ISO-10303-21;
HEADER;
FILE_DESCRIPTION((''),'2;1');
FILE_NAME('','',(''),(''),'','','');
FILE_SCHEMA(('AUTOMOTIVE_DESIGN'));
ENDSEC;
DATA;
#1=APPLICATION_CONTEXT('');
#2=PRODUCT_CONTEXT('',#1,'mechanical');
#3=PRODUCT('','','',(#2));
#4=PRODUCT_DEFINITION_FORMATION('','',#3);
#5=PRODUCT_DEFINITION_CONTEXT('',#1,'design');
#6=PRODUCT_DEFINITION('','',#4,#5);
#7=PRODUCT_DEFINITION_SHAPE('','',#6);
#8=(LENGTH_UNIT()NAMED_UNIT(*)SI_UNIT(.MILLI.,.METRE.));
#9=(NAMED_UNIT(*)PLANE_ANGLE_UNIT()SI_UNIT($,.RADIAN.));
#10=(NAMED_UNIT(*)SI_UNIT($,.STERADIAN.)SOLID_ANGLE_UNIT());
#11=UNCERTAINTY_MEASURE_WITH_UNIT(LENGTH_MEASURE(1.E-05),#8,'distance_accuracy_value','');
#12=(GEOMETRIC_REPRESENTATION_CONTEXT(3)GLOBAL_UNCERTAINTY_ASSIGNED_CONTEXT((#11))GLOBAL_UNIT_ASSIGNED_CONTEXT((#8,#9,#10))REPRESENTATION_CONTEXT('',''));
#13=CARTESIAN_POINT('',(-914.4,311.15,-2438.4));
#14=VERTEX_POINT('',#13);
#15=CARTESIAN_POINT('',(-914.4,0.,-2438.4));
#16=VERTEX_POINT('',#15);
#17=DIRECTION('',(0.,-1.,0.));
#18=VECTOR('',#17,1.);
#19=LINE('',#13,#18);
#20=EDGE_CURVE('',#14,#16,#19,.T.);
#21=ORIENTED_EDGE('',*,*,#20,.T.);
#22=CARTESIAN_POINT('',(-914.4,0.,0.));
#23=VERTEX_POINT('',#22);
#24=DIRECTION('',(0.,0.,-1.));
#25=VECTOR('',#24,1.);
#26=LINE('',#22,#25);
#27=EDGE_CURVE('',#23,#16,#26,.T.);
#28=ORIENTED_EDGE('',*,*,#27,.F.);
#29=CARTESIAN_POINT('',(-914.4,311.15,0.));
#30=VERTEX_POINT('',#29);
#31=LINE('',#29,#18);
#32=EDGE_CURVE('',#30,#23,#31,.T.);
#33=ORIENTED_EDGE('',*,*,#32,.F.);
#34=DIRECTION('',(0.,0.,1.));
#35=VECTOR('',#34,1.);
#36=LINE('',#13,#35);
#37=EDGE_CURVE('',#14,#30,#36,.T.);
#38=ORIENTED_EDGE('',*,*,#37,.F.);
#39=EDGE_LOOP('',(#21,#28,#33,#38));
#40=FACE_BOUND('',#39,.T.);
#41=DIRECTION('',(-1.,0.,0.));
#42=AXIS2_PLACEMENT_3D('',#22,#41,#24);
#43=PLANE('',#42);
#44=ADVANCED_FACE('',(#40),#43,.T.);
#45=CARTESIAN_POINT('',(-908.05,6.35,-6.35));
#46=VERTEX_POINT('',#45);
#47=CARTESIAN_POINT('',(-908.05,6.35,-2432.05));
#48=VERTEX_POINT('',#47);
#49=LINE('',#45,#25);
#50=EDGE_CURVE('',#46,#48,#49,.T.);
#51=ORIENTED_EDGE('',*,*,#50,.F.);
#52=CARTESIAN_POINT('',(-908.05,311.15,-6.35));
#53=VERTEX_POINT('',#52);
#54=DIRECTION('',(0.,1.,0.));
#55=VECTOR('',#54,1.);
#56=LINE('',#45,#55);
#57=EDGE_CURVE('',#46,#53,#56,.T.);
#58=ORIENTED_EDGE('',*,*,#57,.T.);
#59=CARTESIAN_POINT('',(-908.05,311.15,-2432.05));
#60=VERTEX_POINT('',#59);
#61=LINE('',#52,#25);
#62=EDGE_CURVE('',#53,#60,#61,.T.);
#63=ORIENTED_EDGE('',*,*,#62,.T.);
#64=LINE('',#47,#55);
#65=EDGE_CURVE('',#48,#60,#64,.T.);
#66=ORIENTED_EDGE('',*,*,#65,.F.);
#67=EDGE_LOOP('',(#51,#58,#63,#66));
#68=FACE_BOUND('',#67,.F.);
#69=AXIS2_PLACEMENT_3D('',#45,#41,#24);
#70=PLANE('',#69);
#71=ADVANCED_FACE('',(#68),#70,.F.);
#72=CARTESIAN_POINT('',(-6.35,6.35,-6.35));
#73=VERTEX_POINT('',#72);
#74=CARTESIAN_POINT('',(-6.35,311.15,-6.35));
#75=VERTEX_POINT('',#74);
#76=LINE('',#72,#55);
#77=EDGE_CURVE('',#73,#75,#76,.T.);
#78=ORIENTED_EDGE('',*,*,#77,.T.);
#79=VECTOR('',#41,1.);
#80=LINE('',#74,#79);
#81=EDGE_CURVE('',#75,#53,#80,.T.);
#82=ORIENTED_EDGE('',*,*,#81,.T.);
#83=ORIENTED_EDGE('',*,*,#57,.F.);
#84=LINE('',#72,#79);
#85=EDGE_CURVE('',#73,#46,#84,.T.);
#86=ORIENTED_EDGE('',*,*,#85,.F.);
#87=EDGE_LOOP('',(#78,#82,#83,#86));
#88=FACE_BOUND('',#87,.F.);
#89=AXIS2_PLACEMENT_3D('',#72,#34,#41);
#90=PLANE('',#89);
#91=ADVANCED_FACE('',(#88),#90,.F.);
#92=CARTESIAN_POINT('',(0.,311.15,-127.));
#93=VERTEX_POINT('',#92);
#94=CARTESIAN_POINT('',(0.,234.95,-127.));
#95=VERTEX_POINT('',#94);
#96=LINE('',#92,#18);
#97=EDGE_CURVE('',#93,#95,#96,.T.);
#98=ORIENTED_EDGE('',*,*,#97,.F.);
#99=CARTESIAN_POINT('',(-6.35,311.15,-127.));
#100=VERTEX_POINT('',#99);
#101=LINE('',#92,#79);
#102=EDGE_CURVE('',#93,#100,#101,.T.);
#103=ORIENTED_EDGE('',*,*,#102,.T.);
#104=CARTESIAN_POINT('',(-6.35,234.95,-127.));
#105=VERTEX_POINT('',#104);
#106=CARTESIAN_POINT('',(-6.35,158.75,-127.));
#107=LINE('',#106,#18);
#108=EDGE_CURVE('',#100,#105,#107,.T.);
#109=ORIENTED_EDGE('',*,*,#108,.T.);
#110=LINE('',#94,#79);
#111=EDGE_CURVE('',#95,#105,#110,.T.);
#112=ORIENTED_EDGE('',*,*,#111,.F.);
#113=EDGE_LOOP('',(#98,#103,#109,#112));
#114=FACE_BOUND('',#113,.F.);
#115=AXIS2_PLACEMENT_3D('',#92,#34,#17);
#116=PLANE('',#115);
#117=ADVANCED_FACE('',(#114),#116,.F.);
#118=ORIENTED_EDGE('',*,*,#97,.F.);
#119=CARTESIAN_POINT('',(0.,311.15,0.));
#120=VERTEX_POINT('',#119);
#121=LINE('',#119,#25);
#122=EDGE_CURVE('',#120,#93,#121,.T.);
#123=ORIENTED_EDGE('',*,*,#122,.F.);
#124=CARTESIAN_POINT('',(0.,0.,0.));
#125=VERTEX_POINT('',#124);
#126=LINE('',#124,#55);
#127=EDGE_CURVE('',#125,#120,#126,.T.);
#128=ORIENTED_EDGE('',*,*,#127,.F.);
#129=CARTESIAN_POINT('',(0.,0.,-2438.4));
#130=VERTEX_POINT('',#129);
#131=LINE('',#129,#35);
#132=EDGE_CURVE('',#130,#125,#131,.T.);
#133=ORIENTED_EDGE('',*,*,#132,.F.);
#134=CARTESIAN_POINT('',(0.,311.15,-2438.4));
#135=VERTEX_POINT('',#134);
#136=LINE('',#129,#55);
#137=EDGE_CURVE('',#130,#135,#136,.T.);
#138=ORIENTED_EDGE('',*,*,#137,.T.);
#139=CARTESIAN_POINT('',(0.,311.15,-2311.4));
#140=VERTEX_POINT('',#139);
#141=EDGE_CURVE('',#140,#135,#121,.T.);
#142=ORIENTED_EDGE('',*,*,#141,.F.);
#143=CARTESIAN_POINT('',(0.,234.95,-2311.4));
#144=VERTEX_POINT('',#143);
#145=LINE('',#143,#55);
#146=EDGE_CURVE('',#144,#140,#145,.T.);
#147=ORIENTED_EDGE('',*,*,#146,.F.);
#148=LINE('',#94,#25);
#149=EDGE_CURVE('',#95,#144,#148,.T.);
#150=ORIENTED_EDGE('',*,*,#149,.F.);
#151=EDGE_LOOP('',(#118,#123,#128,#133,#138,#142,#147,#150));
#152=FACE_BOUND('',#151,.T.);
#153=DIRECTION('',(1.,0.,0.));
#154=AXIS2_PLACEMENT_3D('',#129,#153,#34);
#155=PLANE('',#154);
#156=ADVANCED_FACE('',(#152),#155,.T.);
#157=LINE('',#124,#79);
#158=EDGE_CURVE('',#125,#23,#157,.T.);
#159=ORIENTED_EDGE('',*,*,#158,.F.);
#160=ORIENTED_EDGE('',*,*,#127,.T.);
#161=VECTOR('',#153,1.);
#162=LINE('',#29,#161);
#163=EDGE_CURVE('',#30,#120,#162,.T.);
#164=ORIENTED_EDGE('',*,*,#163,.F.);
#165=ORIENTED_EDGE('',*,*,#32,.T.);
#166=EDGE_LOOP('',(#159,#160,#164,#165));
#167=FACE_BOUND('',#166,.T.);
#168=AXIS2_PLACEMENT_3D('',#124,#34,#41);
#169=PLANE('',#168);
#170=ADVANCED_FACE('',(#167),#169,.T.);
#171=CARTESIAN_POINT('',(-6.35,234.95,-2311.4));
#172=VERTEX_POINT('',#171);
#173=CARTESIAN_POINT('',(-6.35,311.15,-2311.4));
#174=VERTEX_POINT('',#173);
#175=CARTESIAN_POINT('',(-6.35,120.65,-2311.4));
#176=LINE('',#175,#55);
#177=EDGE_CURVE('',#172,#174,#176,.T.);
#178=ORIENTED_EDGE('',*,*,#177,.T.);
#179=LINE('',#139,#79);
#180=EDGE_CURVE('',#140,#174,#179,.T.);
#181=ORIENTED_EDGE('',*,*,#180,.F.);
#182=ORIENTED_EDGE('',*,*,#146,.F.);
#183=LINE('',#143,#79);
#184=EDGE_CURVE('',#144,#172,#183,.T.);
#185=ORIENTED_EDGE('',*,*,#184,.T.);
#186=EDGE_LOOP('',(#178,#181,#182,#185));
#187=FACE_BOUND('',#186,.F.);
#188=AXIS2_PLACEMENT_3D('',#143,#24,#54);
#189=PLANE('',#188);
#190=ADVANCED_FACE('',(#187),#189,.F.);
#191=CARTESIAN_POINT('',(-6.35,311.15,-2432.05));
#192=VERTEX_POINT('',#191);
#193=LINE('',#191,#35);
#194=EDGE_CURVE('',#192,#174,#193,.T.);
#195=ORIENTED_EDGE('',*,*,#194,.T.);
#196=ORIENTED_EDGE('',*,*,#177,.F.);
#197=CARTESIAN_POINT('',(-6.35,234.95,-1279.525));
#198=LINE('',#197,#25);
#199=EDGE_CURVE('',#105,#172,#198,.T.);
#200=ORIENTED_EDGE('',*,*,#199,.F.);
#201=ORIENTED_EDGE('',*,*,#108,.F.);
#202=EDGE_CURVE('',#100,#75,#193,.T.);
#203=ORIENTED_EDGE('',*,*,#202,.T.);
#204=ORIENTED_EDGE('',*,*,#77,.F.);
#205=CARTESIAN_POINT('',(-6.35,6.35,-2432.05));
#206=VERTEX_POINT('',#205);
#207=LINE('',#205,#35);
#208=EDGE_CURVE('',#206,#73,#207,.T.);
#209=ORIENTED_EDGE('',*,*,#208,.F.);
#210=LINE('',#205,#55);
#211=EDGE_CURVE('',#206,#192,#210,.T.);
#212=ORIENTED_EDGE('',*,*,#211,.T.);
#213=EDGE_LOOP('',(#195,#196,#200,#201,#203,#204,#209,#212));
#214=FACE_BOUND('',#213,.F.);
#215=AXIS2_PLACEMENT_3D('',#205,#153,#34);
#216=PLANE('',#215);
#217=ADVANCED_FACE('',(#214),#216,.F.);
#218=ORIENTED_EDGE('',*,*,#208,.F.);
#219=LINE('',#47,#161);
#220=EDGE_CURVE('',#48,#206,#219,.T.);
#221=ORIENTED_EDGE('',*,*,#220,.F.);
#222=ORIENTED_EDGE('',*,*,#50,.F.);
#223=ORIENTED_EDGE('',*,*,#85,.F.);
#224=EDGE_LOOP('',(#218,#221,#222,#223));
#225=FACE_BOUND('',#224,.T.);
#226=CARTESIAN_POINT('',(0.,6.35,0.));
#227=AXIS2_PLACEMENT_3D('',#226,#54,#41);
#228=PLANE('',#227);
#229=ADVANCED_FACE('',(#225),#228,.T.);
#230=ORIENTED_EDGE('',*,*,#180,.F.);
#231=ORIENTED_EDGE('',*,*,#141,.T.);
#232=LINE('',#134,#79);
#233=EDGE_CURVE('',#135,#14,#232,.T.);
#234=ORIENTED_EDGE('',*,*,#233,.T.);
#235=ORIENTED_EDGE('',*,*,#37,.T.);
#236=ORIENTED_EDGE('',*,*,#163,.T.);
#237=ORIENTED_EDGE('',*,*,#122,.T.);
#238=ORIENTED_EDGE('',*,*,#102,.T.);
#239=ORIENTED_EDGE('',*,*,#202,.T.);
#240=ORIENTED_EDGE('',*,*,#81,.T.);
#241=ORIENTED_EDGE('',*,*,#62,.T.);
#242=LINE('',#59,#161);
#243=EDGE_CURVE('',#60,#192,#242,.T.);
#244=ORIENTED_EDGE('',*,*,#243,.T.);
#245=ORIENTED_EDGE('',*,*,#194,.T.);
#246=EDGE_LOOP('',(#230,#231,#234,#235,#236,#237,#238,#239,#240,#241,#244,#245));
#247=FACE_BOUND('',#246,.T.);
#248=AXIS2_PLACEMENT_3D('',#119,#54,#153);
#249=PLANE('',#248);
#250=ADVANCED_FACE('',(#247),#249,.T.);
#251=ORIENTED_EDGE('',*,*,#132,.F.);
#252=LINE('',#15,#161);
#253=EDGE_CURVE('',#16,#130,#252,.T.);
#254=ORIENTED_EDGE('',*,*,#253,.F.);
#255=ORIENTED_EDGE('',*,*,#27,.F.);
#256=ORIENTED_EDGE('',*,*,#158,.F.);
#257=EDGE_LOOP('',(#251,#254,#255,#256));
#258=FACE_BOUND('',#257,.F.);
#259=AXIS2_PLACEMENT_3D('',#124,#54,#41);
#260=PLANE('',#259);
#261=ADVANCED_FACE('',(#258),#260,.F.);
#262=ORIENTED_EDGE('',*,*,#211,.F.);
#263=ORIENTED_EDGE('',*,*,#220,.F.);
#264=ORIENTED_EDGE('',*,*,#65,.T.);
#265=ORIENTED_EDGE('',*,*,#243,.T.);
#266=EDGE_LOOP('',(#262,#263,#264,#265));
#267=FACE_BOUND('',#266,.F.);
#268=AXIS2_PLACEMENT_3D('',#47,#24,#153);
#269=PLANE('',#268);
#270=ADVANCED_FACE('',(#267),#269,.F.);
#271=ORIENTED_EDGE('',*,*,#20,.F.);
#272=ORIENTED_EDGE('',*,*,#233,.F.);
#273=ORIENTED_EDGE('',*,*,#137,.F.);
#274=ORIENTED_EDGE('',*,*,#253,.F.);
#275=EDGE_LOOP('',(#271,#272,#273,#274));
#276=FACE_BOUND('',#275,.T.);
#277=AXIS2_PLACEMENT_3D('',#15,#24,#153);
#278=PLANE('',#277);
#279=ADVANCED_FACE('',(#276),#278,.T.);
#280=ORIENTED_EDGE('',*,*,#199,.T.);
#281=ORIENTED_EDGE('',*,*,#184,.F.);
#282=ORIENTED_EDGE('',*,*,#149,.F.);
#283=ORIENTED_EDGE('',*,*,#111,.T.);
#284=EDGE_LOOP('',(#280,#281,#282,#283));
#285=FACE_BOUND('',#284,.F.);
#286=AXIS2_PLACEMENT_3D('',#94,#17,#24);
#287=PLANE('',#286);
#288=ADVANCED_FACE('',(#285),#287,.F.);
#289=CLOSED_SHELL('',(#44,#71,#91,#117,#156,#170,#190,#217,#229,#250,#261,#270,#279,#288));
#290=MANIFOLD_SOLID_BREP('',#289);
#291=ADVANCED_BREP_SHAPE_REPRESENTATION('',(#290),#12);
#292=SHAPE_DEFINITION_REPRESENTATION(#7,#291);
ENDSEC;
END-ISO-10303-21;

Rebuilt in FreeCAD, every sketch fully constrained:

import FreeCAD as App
import Part
import Sketcher

V = App.Vector
Q = App.Units.Quantity

doc = App.newDocument("Part")
body = doc.addObject("PartDesign::Body", "Body")

# Sketch on XZ plane
sketch1 = doc.addObject("Sketcher::SketchObject", "Sketch")
body.addObject(sketch1)
sketch1.AttachmentSupport = (doc.XZ_Plane, [""])
sketch1.MapMode = "FlatFace"
sketch1.addGeometry(Part.LineSegment(V(-914, 0, 0), V(0, 0, 0)), False)
sketch1.addGeometry(Part.LineSegment(V(0, 0, 0), V(0, -2438, 0)), False)
sketch1.addGeometry(Part.LineSegment(V(0, -2438, 0), V(-914, -2438, 0)), False)
sketch1.addGeometry(Part.LineSegment(V(-914, -2438, 0), V(-914, 0, 0)), False)
sketch1.addConstraint(Sketcher.Constraint("Coincident", 0, 2, 1, 1))
sketch1.addConstraint(Sketcher.Constraint("Coincident", 1, 2, 2, 1))
sketch1.addConstraint(Sketcher.Constraint("Coincident", 2, 2, 3, 1))
sketch1.addConstraint(Sketcher.Constraint("Coincident", 3, 2, 0, 1))
sketch1.addConstraint(Sketcher.Constraint("Horizontal", 0))
sketch1.addConstraint(Sketcher.Constraint("Vertical", 1))
sketch1.addConstraint(Sketcher.Constraint("Horizontal", 2))
sketch1.addConstraint(Sketcher.Constraint("Vertical", 3))
sketch1.addConstraint(Sketcher.Constraint("Coincident", 0, 2, -1, 1))
sketch1.addConstraint(Sketcher.Constraint("DistanceX", 0, 1, 0, 2, Q("36 in")))
sketch1.addConstraint(Sketcher.Constraint("DistanceY", 1, 2, 1, 1, Q("96 in")))
pad1 = doc.addObject("PartDesign::Pad", "Pad")
body.addObject(pad1)
pad1.Profile = sketch1
pad1.Length = Q("0.25 in")
pad1.Reversed = True

# Sketch on XZ plane
sketch2 = doc.addObject("Sketcher::SketchObject", "Sketch001")
body.addObject(sketch2)
sketch2.AttachmentSupport = (doc.XZ_Plane, [""])
sketch2.MapMode = "FlatFace"
sketch2.AttachmentOffset = App.Placement(V(0, 0, -0.25 * 25.4), App.Rotation())
sketch2.addGeometry(Part.LineSegment(V(0, -2438, 0), V(-914, -2438, 0)), False)
sketch2.addGeometry(Part.LineSegment(V(-914, -2438, 0), V(-914, 0, 0)), False)
sketch2.addGeometry(Part.LineSegment(V(-914, 0, 0), V(0, 0, 0)), False)
sketch2.addGeometry(Part.LineSegment(V(0, 0, 0), V(0, -2438, 0)), False)
sketch2.addGeometry(Part.LineSegment(V(-6, -2432, 0), V(-6, -6, 0)), False)
sketch2.addGeometry(Part.LineSegment(V(-6, -6, 0), V(-908, -6, 0)), False)
sketch2.addGeometry(Part.LineSegment(V(-908, -6, 0), V(-908, -2432, 0)), False)
sketch2.addGeometry(Part.LineSegment(V(-908, -2432, 0), V(-6, -2432, 0)), False)
sketch2.addConstraint(Sketcher.Constraint("Coincident", 0, 2, 1, 1))
sketch2.addConstraint(Sketcher.Constraint("Coincident", 1, 2, 2, 1))
sketch2.addConstraint(Sketcher.Constraint("Coincident", 2, 2, 3, 1))
sketch2.addConstraint(Sketcher.Constraint("Coincident", 3, 2, 0, 1))
sketch2.addConstraint(Sketcher.Constraint("Coincident", 4, 2, 5, 1))
sketch2.addConstraint(Sketcher.Constraint("Coincident", 5, 2, 6, 1))
sketch2.addConstraint(Sketcher.Constraint("Coincident", 6, 2, 7, 1))
sketch2.addConstraint(Sketcher.Constraint("Coincident", 7, 2, 4, 1))
sketch2.addConstraint(Sketcher.Constraint("Horizontal", 0))
sketch2.addConstraint(Sketcher.Constraint("Vertical", 1))
sketch2.addConstraint(Sketcher.Constraint("Horizontal", 2))
sketch2.addConstraint(Sketcher.Constraint("Vertical", 3))
sketch2.addConstraint(Sketcher.Constraint("Vertical", 4))
sketch2.addConstraint(Sketcher.Constraint("Horizontal", 5))
sketch2.addConstraint(Sketcher.Constraint("Vertical", 6))
sketch2.addConstraint(Sketcher.Constraint("Horizontal", 7))
sketch2.addConstraint(Sketcher.Constraint("Coincident", 2, 2, -1, 1))
sketch2.addConstraint(Sketcher.Constraint("DistanceX", 0, 2, 0, 1, Q("36 in")))
sketch2.addConstraint(Sketcher.Constraint("DistanceY", 1, 1, 1, 2, Q("96 in")))
sketch2.addConstraint(Sketcher.Constraint("DistanceX", 4, 2, -1, 1, Q("0.25 in")))
sketch2.addConstraint(Sketcher.Constraint("DistanceY", 4, 2, -1, 1, Q("0.25 in")))
sketch2.addConstraint(Sketcher.Constraint("DistanceX", 1, 2, 5, 2, Q("0.25 in")))
sketch2.addConstraint(Sketcher.Constraint("DistanceY", 0, 2, 6, 2, Q("0.25 in")))
pad2 = doc.addObject("PartDesign::Pad", "Pad001")
body.addObject(pad2)
pad2.Profile = sketch2
pad2.Length = Q("12 in")
pad2.Reversed = True

# Sketch on YZ plane
sketch3 = doc.addObject("Sketcher::SketchObject", "Sketch002")
body.addObject(sketch3)
sketch3.AttachmentSupport = (doc.YZ_Plane, [""])
sketch3.MapMode = "FlatFace"
sketch3.addGeometry(Part.LineSegment(V(311, -2311, 0), V(311, -127, 0)), False)
sketch3.addGeometry(Part.LineSegment(V(311, -127, 0), V(235, -127, 0)), False)
sketch3.addGeometry(Part.LineSegment(V(235, -127, 0), V(235, -2311, 0)), False)
sketch3.addGeometry(Part.LineSegment(V(235, -2311, 0), V(311, -2311, 0)), False)
sketch3.addConstraint(Sketcher.Constraint("Coincident", 0, 2, 1, 1))
sketch3.addConstraint(Sketcher.Constraint("Coincident", 1, 2, 2, 1))
sketch3.addConstraint(Sketcher.Constraint("Coincident", 2, 2, 3, 1))
sketch3.addConstraint(Sketcher.Constraint("Coincident", 3, 2, 0, 1))
sketch3.addConstraint(Sketcher.Constraint("Vertical", 0))
sketch3.addConstraint(Sketcher.Constraint("Horizontal", 1))
sketch3.addConstraint(Sketcher.Constraint("Vertical", 2))
sketch3.addConstraint(Sketcher.Constraint("Horizontal", 3))
sketch3.addConstraint(Sketcher.Constraint("DistanceX", 1, 2, 1, 1, Q("3 in")))
sketch3.addConstraint(Sketcher.Constraint("DistanceY", 0, 2, -1, 1, Q("5 in")))
sketch3.addConstraint(Sketcher.Constraint("DistanceY", 0, 1, 0, 2, Q("86 in")))
sketch3.addConstraint(Sketcher.Constraint("DistanceX", -1, 1, 0, 2, Q("12.25 in")))
pocket1 = doc.addObject("PartDesign::Pocket", "Pocket")
body.addObject(pocket1)
pocket1.Profile = sketch3
pocket1.Length = Q("2 in")

doc.recompute()
